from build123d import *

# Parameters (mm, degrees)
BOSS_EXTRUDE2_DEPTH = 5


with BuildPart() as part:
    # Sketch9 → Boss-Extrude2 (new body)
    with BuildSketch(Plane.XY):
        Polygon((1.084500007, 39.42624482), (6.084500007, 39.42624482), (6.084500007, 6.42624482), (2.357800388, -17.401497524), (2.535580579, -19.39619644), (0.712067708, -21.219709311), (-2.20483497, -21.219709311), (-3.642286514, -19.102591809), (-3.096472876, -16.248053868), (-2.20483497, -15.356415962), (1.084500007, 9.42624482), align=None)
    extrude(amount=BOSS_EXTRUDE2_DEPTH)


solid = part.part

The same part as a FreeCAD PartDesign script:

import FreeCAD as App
import Part
import Sketcher
from FreeCAD import Vector
Q = App.Units.Quantity


def add_polygon(sketch, points):
    """Adds a closed chain of lines whose ends are joined by coincident constraints."""
    first, n = sketch.GeometryCount, len(points)
    for a, b in zip(points, points[1:] + points[:1]):
        sketch.addGeometry(Part.LineSegment(App.Vector(*a, 0), App.Vector(*b, 0)), False)
    for i in range(n):
        sketch.addConstraint(Sketcher.Constraint("Coincident", first + i, 2, first + (i + 1) % n, 1))

doc = App.newDocument("Part")
params = doc.addObject("Spreadsheet::Sheet", "Params")
for row, (alias, value) in enumerate([
    ("sketch1_width", "5 mm"),
    ("sketch1_height", "30 mm"),
    ("sketch1_height2", "33 mm"),
    ("sketch1_length", "25 mm"),
    ("pad1_length", "5 mm"),
], start=1):
    params.set(f"A{row}", alias)
    params.set(f"B{row}", "=" + value)
    params.setAlias(f"B{row}", alias)

body = doc.addObject("PartDesign::Body", "Body")

# Sketch on XY plane
sketch1 = doc.addObject("Sketcher::SketchObject", "Sketch")
body.addObject(sketch1)
sketch1.AttachmentSupport = (doc.XY_Plane, [""])
sketch1.MapMode = "FlatFace"
add_polygon(sketch1, [(6.0845, 39.426245), (1.0845, 39.426245), (1.0845, 9.426245), (-2.204835, -15.356416), (-3.096473, -16.248054), (-3.642287, -19.102592), (-2.204835, -21.219709), (0.712068, -21.219709), (2.535581, -19.396196), (2.3578, -17.401498), (6.0845, 6.426245)])  # lines 0-10
sketch1.addConstraint([
    Sketcher.Constraint("Horizontal", 0),
    Sketcher.Constraint("Vertical", 1),
    Sketcher.Constraint("Horizontal", 6),
    Sketcher.Constraint("Vertical", 10),
    Sketcher.Constraint("Parallel", 3, 7),
    Sketcher.Constraint("Vertical", 2, 2, 5, 2),
    Sketcher.Constraint("DistanceX", 0, 2, 0, 1, Q("5 mm")),
    Sketcher.Constraint("DistanceY", 1, 2, 1, 1, Q("30 mm")),
    Sketcher.Constraint("DistanceY", 10, 1, 10, 2, Q("33 mm")),
    Sketcher.Constraint("Angle", 3, Q("-135 deg")),
    Sketcher.Constraint("Distance", 2, Q("25 mm")),
    Sketcher.Constraint("DistanceX", -1, 1, 0, 2, Q("1.0845 mm")),
    Sketcher.Constraint("DistanceX", -1, 1, 8, 2, Q("2.3578 mm")),
    Sketcher.Constraint("DistanceY", 3, 2, 1, 2, Q("25.674299 mm")),
    Sketcher.Constraint("DistanceY", 7, 2, 8, 2, Q("1.994699 mm")),
    Sketcher.Constraint("Distance", 4, Q("2.906252 mm")),
    Sketcher.Constraint("DistanceX", 6, 1, 6, 2, Q("2.916903 mm")),
    Sketcher.Constraint("DistanceY", 4, 2, -1, 1, Q("19.102592 mm")),
    Sketcher.Constraint("DistanceY", 5, 2, -1, 1, Q("21.219709 mm")),
    Sketcher.Constraint("DistanceX", -1, 1, 7, 2, Q("2.535581 mm")),
    Sketcher.Constraint("DistanceY", 2, 2, 1, 2, Q("24.782661 mm")),
    Sketcher.Constraint("DistanceX", 4, 2, 2, 2, Q("1.437452 mm")),
])
sketch1.setExpression("Constraints[17]", "Params.sketch1_width")
sketch1.setExpression("Constraints[18]", "Params.sketch1_height")
sketch1.setExpression("Constraints[19]", "Params.sketch1_height2")
sketch1.setExpression("Constraints[21]", "Params.sketch1_length")
pad1 = doc.addObject("PartDesign::Pad", "Pad")
body.addObject(pad1)
pad1.Profile = sketch1
pad1.setExpression("Length", "Params.pad1_length")

doc.recompute()
